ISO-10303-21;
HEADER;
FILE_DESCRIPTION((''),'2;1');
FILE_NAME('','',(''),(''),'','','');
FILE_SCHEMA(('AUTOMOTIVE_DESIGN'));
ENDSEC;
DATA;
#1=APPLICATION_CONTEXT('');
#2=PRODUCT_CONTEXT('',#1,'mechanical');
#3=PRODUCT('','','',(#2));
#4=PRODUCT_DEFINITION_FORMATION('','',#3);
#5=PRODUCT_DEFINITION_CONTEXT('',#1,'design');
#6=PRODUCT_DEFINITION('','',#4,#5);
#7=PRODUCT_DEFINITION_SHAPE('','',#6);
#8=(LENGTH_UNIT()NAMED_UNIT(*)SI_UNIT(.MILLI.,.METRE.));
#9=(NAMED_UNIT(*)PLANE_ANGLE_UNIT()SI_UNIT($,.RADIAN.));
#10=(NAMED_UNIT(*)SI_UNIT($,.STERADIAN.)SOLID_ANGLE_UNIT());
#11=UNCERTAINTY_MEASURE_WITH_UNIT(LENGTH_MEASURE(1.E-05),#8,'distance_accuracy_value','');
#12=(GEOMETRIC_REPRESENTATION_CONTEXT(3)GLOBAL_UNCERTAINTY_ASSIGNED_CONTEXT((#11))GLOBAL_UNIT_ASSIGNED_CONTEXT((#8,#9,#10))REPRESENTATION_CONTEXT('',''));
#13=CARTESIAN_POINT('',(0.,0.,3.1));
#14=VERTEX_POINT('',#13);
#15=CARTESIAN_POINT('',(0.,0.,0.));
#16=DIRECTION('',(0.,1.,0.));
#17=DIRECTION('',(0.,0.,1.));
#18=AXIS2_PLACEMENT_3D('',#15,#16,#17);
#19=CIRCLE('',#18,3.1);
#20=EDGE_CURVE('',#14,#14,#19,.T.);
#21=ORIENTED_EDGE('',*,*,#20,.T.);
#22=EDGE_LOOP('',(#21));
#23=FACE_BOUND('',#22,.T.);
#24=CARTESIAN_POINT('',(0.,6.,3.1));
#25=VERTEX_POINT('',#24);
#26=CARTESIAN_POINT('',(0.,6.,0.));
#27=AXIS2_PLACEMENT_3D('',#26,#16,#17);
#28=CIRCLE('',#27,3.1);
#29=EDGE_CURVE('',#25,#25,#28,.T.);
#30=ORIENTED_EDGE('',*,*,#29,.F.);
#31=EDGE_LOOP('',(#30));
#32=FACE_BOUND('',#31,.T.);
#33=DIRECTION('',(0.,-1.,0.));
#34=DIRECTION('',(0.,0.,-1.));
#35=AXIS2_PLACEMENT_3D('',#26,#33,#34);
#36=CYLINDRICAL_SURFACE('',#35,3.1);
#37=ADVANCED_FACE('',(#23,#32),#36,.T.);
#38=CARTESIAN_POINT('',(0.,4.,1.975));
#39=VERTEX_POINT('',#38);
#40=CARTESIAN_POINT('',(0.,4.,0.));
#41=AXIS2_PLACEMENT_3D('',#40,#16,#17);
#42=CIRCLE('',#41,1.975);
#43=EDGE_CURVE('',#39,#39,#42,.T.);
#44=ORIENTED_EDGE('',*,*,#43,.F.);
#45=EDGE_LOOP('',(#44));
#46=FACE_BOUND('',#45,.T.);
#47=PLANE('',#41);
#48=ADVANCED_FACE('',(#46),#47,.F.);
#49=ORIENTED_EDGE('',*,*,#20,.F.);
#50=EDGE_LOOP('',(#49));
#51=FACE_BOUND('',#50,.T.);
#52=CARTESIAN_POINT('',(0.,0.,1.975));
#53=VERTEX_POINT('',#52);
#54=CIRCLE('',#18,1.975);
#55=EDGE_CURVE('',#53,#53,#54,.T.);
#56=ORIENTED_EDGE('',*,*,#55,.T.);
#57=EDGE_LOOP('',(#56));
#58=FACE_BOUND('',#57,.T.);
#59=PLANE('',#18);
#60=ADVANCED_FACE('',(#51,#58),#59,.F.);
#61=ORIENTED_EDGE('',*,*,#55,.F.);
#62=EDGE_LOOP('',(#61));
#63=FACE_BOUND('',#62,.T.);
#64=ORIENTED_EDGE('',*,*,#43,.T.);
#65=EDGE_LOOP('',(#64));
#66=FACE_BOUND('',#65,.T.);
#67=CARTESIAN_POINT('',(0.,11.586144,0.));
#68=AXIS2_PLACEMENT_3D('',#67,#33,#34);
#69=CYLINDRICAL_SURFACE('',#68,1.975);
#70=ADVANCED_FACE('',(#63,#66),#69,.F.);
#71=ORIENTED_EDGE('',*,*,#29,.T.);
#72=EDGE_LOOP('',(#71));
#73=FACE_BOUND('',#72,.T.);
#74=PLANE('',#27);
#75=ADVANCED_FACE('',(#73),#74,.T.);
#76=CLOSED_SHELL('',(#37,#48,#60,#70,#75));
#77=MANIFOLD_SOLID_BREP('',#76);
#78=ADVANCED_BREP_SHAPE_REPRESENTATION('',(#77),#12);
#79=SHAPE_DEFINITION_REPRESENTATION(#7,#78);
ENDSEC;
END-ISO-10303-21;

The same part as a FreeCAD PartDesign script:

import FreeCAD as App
import Part
import Sketcher
from FreeCAD import Vector
Q = App.Units.Quantity

doc = App.newDocument("Part")
body = doc.addObject("PartDesign::Body", "Body")

sketch1 = doc.addObject("Sketcher::SketchObject", "Sketch")
body.addObject(sketch1)
sketch1.AttachmentSupport = (doc.XZ_Plane, [""])
sketch1.MapMode = "FlatFace"
sketch1.addGeometry(Part.Circle(Vector(0, 0, 0), Vector(0, 0, 1), 3.1), False)
sketch1.addConstraint([
    Sketcher.Constraint("Coincident", 0, 3, -1, 1),
    Sketcher.Constraint("Diameter", 0, Q("6.2 mm")),
])
pad1 = doc.addObject("PartDesign::Pad", "Pad")
body.addObject(pad1)
pad1.Profile = sketch1
pad1.Length = 6
pad1.Reversed = True

sketch2 = doc.addObject("Sketcher::SketchObject", "Sketch001")
body.addObject(sketch2)
sketch2.AttachmentSupport = (doc.XZ_Plane, [""])
sketch2.MapMode = "FlatFace"
sketch2.addGeometry(Part.Circle(Vector(0, 0, 0), Vector(0, 0, 1), 2), False)
sketch2.addConstraint([
    Sketcher.Constraint("Coincident", 0, 3, -1, 1),
    Sketcher.Constraint("Diameter", 0, Q("3.95 mm")),
])
pocket1 = doc.addObject("PartDesign::Pocket", "Pocket")
body.addObject(pocket1)
pocket1.Profile = sketch2
pocket1.Length = 4

doc.recompute()
